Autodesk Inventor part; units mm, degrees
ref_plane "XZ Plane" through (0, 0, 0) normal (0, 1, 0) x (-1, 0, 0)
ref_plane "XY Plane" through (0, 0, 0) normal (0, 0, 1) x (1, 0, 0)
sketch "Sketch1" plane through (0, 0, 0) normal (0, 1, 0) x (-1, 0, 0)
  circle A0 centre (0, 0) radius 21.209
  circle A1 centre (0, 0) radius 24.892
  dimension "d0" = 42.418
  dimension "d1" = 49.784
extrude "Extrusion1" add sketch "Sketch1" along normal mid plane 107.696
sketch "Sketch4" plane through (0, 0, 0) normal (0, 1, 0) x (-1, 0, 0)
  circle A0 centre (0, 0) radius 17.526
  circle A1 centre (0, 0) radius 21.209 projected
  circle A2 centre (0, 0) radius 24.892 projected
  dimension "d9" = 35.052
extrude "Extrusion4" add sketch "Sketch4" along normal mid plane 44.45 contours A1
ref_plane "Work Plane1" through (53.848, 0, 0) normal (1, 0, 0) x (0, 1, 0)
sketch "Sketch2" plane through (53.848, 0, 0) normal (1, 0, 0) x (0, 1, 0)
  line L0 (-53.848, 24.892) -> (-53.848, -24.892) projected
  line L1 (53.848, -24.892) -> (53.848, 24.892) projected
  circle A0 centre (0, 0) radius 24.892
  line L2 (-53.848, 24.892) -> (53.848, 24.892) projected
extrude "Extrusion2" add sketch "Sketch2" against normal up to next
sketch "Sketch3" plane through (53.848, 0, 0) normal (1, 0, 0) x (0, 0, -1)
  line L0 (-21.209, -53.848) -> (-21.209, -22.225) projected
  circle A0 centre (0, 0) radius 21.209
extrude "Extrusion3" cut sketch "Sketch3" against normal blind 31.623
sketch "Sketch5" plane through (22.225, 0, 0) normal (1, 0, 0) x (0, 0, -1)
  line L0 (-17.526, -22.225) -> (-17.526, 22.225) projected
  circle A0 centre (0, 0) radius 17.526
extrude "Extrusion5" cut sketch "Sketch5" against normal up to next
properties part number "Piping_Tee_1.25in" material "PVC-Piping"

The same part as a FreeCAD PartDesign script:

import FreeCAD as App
import Part
import Sketcher

V = App.Vector
Q = App.Units.Quantity

doc = App.newDocument("Part")
params = doc.addObject("Spreadsheet::Sheet", "Params")
for row, (alias, value) in enumerate([
    ("sketch1_diameter", "1.96 in"),
    ("sketch1_diameter2", "1.67 in"),
    ("pad1_length", "4.24 in"),
    ("sketch2_diameter", "1.38 in"),
    ("sketch2_diameter2", "1.67 in"),
    ("pad2_length", "1.75 in"),
    ("sketch3_diameter", "1.96 in"),
    ("sketch4_diameter", "1.67 in"),
    ("pocket1_length", "1.245 in"),
    ("sketch5_diameter", "1.38 in"),
    ("pocket2_length", "0.875 in"),
], start=1):
    params.set(f"A{row}", alias)
    params.set(f"B{row}", "=" + value)
    params.setAlias(f"B{row}", alias)

body = doc.addObject("PartDesign::Body", "Body")

# Sketch on XZ plane
sketch1 = body.newObject("Sketcher::SketchObject", "Sketch")
sketch1.AttachmentSupport = (doc.getObject("XZ_Plane"), [""])
sketch1.MapMode = "FlatFace"
sketch1.addGeometry([
    Part.Circle(V(0, 0, 0), V(0, 0, 1), 24.892),
    Part.Circle(V(0, 0, 0), V(0, 0, 1), 21.209),
], False)
sketch1.addConstraint([
    Sketcher.Constraint("Coincident", 0, 3, -1, 1),
    Sketcher.Constraint("Coincident", 1, 3, -1, 1),
    Sketcher.Constraint("Diameter", 0, Q("1.96 in")),
    Sketcher.Constraint("Diameter", 1, Q("1.67 in")),
])
sketch1.setExpression("Constraints[2]", "Params.sketch1_diameter")
sketch1.setExpression("Constraints[3]", "Params.sketch1_diameter2")
pad1 = body.newObject("PartDesign::Pad", "Pad")
pad1.Profile = sketch1
pad1.setExpression("Length", "Params.pad1_length")
pad1.Midplane = True

# Sketch on XZ plane
sketch2 = body.newObject("Sketcher::SketchObject", "Sketch001")
sketch2.AttachmentSupport = (doc.getObject("XZ_Plane"), [""])
sketch2.MapMode = "FlatFace"
sketch2.addGeometry([
    Part.Circle(V(0, 0, 0), V(0, 0, 1), 21.209),
    Part.Circle(V(0, 0, 0), V(0, 0, 1), 17.526),
], False)
sketch2.addConstraint([
    Sketcher.Constraint("Coincident", 0, 3, -1, 1),
    Sketcher.Constraint("Coincident", 1, 3, -1, 1),
    Sketcher.Constraint("Diameter", 1, Q("1.38 in")),
    Sketcher.Constraint("Diameter", 0, Q("1.67 in")),
])
sketch2.setExpression("Constraints[2]", "Params.sketch2_diameter")
sketch2.setExpression("Constraints[3]", "Params.sketch2_diameter2")
pad2 = body.newObject("PartDesign::Pad", "Pad001")
pad2.Profile = sketch2
pad2.setExpression("Length", "Params.pad2_length")
pad2.Midplane = True

# Sketch on YZ plane
sketch3 = body.newObject("Sketcher::SketchObject", "Sketch002")
sketch3.AttachmentSupport = (doc.getObject("YZ_Plane"), [""])
sketch3.MapMode = "FlatFace"
sketch3.AttachmentOffset = App.Placement(V(0, 0, 2.12 * 25.4), App.Rotation())
sketch3.addGeometry(Part.Circle(V(0, 0, 0), V(0, 0, 1), 24.892), False)
sketch3.addConstraint([
    Sketcher.Constraint("Coincident", 0, 3, -1, 1),
    Sketcher.Constraint("Diameter", 0, Q("1.96 in")),
])
sketch3.setExpression("Constraints[1]", "Params.sketch3_diameter")
pad3 = body.newObject("PartDesign::Pad", "Pad002")
pad3.Profile = sketch3
pad3.Type = "UpToFirst"
pad3.Reversed = True

# Sketch on YZ plane
sketch4 = body.newObject("Sketcher::SketchObject", "Sketch003")
sketch4.AttachmentSupport = (doc.getObject("YZ_Plane"), [""])
sketch4.MapMode = "FlatFace"
sketch4.AttachmentOffset = App.Placement(V(0, 0, 2.12 * 25.4), App.Rotation())
sketch4.addGeometry(Part.Circle(V(0, 0, 0), V(0, 0, 1), 21.209), False)
sketch4.addConstraint([
    Sketcher.Constraint("Coincident", 0, 3, -1, 1),
    Sketcher.Constraint("Diameter", 0, Q("1.67 in")),
])
sketch4.setExpression("Constraints[1]", "Params.sketch4_diameter")
pocket1 = body.newObject("PartDesign::Pocket", "Pocket")
pocket1.Profile = sketch4
pocket1.setExpression("Length", "Params.pocket1_length")

# Sketch on YZ plane
sketch5 = body.newObject("Sketcher::SketchObject", "Sketch004")
sketch5.AttachmentSupport = (doc.getObject("YZ_Plane"), [""])
sketch5.MapMode = "FlatFace"
sketch5.AttachmentOffset = App.Placement(V(0, 0, 0.875 * 25.4), App.Rotation())
sketch5.addGeometry(Part.Circle(V(0, 0, 0), V(0, 0, 1), 17.526), False)
sketch5.addConstraint([
    Sketcher.Constraint("Coincident", 0, 3, -1, 1),
    Sketcher.Constraint("Diameter", 0, Q("1.38 in")),
])
sketch5.setExpression("Constraints[1]", "Params.sketch5_diameter")
pocket2 = body.newObject("PartDesign::Pocket", "Pocket001")
pocket2.Profile = sketch5
pocket2.setExpression("Length", "Params.pocket2_length")

doc.recompute()
